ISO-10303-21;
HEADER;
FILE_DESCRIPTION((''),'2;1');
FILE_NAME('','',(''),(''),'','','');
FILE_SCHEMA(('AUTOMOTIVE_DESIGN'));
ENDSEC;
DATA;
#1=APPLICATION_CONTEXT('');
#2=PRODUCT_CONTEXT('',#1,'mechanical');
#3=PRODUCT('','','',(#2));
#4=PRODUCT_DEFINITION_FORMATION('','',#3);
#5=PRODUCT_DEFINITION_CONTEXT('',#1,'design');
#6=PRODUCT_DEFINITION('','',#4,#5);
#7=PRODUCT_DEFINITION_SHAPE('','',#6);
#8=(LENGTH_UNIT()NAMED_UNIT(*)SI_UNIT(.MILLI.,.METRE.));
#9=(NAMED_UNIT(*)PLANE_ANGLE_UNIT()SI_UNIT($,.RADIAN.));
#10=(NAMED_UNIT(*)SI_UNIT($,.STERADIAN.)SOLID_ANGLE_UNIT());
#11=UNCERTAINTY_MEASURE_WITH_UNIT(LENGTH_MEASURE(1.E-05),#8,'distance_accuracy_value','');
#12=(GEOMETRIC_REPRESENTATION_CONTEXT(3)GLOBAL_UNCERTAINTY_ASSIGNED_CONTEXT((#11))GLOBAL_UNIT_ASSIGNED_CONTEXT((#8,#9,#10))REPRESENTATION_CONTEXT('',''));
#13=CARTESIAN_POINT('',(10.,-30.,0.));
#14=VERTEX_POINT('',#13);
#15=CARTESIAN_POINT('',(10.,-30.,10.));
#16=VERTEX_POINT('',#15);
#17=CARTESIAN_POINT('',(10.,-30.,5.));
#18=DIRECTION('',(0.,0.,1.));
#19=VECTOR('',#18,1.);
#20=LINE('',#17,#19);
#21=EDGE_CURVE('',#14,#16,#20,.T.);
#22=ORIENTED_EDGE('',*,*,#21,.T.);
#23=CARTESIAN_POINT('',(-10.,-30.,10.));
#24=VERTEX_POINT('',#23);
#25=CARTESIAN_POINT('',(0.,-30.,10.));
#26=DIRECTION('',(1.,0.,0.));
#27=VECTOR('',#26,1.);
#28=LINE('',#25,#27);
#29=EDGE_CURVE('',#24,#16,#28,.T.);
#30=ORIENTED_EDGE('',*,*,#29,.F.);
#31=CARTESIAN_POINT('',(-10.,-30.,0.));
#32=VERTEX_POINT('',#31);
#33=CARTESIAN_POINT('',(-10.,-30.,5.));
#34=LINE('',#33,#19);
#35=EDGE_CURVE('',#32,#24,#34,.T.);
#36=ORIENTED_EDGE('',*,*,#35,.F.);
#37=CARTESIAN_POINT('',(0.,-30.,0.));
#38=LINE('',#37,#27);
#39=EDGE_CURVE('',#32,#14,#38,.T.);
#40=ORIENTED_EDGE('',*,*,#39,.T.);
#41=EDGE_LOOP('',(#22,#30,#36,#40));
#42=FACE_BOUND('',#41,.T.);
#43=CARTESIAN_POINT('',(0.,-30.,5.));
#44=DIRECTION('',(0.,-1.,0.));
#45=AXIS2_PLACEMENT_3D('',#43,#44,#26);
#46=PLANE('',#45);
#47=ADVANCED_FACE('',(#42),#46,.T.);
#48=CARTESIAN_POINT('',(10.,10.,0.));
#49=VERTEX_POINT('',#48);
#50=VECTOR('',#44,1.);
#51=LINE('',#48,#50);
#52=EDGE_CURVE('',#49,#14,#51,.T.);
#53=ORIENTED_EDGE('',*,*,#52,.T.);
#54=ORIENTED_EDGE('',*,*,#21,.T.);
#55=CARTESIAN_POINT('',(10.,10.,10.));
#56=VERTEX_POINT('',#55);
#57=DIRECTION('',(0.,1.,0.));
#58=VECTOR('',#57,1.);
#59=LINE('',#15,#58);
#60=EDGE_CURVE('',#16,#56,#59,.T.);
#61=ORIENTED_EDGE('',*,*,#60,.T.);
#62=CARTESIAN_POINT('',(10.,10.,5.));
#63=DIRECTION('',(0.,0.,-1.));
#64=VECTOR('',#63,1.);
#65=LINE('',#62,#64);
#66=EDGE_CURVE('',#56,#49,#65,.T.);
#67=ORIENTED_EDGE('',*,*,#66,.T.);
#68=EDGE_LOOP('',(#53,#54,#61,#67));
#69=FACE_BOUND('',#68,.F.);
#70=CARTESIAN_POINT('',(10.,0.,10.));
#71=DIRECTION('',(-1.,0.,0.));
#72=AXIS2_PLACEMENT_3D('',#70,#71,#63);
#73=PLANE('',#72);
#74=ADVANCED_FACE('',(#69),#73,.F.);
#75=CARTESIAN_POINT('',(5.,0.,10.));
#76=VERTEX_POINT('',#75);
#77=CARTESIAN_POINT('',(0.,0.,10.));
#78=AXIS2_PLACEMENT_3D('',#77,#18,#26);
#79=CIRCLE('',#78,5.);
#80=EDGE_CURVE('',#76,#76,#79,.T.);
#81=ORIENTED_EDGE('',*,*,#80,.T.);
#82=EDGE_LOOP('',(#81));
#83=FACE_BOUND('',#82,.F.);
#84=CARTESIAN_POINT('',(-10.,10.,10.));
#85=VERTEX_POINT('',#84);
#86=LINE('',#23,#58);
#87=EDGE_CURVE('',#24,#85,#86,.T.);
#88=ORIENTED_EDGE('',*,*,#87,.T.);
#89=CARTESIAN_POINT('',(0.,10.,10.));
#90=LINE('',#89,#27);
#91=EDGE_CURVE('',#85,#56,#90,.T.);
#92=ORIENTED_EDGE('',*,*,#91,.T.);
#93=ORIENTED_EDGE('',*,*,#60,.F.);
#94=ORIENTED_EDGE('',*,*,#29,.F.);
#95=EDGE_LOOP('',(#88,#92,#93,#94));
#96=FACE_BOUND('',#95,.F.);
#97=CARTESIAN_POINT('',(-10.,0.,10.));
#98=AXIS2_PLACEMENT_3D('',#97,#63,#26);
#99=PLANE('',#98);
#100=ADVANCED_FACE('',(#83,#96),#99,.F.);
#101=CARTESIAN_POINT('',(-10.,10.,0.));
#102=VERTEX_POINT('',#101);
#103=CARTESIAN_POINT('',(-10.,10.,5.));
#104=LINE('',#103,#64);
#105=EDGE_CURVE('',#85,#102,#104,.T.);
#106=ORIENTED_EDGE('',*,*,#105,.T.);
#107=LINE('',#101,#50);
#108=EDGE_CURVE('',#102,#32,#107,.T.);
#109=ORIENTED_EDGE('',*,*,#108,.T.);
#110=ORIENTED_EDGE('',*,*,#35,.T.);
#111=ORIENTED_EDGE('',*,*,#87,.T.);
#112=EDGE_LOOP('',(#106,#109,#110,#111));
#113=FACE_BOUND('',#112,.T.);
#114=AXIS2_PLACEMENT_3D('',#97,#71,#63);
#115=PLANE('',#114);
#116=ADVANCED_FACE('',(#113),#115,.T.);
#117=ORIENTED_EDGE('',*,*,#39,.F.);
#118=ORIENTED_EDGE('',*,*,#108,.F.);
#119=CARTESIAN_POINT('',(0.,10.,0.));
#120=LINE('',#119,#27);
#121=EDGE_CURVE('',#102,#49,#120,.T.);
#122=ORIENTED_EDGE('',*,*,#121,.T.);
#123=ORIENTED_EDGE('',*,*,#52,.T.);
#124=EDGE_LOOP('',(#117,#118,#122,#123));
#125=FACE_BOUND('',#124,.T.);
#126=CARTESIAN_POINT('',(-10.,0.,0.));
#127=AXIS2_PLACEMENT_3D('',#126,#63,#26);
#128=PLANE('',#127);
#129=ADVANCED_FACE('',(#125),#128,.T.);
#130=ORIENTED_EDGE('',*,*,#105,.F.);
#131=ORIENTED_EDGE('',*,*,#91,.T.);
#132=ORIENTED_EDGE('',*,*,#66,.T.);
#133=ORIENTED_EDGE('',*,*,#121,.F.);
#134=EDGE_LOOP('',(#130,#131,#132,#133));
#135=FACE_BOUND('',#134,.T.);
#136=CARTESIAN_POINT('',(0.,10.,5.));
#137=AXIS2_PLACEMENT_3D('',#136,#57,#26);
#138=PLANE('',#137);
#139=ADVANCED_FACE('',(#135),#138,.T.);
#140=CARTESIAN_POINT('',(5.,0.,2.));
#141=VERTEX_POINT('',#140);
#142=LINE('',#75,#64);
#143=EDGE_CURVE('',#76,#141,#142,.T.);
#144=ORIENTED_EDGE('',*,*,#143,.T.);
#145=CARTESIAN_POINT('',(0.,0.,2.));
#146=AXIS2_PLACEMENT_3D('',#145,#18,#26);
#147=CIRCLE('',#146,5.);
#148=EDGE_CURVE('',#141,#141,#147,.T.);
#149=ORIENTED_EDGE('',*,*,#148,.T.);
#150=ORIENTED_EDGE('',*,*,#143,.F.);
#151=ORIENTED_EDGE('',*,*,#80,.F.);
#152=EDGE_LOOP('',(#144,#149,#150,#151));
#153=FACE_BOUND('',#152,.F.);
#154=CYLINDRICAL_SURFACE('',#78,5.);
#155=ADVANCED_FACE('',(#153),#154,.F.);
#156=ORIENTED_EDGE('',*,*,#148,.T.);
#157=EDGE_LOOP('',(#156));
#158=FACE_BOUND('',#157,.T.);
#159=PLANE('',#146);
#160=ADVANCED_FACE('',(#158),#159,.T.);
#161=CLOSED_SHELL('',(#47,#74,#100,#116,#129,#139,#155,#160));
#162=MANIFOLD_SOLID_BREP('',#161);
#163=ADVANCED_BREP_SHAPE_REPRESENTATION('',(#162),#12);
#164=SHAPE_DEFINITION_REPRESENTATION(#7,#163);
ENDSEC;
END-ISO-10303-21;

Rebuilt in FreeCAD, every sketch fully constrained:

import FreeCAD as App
import Part
import Sketcher
from FreeCAD import Vector
Q = App.Units.Quantity


def add_polygon(sketch, points):
    """Adds a closed chain of lines whose ends are joined by coincident constraints."""
    first, n = sketch.GeometryCount, len(points)
    for a, b in zip(points, points[1:] + points[:1]):
        sketch.addGeometry(Part.LineSegment(App.Vector(*a, 0), App.Vector(*b, 0)), False)
    for i in range(n):
        sketch.addConstraint(Sketcher.Constraint("Coincident", first + i, 2, first + (i + 1) % n, 1))

doc = App.newDocument("Part")
body = doc.addObject("PartDesign::Body", "Body")

# Sketch on XZ plane
sketch1 = body.newObject("Sketcher::SketchObject", "Sketch")
sketch1.AttachmentSupport = (doc.getObject("XZ_Plane"), [""])
sketch1.MapMode = "FlatFace"
add_polygon(sketch1, [(-10, 10), (-10, 0), (10, 0), (10, 10)])  # lines 0-3
sketch1.addConstraint(Sketcher.Constraint("Vertical", 0))
sketch1.addConstraint(Sketcher.Constraint("Horizontal", 1))
sketch1.addConstraint(Sketcher.Constraint("Vertical", 2))
sketch1.addConstraint(Sketcher.Constraint("Horizontal", 3))
sketch1.addConstraint(Sketcher.Constraint("Symmetric", 0, 2, 1, 2, -1, 1))
sketch1.addConstraint(Sketcher.Constraint("DistanceX", 1, 1, 1, 2, Q("20 mm")))
sketch1.addConstraint(Sketcher.Constraint("DistanceY", 0, 2, 0, 1, Q("10 mm")))
pad1 = body.newObject("PartDesign::Pad", "Pad")
pad1.Profile = sketch1
pad1.Length = 30

# Sketch on XZ plane
sketch2 = body.newObject("Sketcher::SketchObject", "Sketch001")
sketch2.AttachmentSupport = (doc.getObject("XZ_Plane"), [""])
sketch2.MapMode = "FlatFace"
add_polygon(sketch2, [(-10, 0), (-10, 10), (10, 10), (10, 0)])  # lines 0-3
sketch2.addConstraint(Sketcher.Constraint("Vertical", 0))
sketch2.addConstraint(Sketcher.Constraint("Horizontal", 1))
sketch2.addConstraint(Sketcher.Constraint("Vertical", 2))
sketch2.addConstraint(Sketcher.Constraint("Horizontal", 3))
sketch2.addConstraint(Sketcher.Constraint("Symmetric", 2, 2, 3, 2, -1, 1))
sketch2.addConstraint(Sketcher.Constraint("DistanceX", 1, 1, 1, 2, Q("20 mm")))
sketch2.addConstraint(Sketcher.Constraint("DistanceY", 0, 1, 0, 2, Q("10 mm")))
pad2 = body.newObject("PartDesign::Pad", "Pad001")
pad2.Profile = sketch2
pad2.Length = 10
pad2.Reversed = True

# Sketch on XY plane
sketch3 = body.newObject("Sketcher::SketchObject", "Sketch002")
sketch3.AttachmentSupport = (doc.getObject("XY_Plane"), [""])
sketch3.MapMode = "FlatFace"
sketch3.AttachmentOffset = App.Placement(Vector(0, 0, 10), App.Rotation())
sketch3.addGeometry(Part.Circle(Vector(0, 0, 0), Vector(0, 0, 1), 5), False)
sketch3.addConstraint(Sketcher.Constraint("Coincident", 0, 3, -1, 1))
sketch3.addConstraint(Sketcher.Constraint("Diameter", 0, Q("10 mm")))
pocket1 = body.newObject("PartDesign::Pocket", "Pocket")
pocket1.Profile = sketch3
pocket1.Length = 8

doc.recompute()
